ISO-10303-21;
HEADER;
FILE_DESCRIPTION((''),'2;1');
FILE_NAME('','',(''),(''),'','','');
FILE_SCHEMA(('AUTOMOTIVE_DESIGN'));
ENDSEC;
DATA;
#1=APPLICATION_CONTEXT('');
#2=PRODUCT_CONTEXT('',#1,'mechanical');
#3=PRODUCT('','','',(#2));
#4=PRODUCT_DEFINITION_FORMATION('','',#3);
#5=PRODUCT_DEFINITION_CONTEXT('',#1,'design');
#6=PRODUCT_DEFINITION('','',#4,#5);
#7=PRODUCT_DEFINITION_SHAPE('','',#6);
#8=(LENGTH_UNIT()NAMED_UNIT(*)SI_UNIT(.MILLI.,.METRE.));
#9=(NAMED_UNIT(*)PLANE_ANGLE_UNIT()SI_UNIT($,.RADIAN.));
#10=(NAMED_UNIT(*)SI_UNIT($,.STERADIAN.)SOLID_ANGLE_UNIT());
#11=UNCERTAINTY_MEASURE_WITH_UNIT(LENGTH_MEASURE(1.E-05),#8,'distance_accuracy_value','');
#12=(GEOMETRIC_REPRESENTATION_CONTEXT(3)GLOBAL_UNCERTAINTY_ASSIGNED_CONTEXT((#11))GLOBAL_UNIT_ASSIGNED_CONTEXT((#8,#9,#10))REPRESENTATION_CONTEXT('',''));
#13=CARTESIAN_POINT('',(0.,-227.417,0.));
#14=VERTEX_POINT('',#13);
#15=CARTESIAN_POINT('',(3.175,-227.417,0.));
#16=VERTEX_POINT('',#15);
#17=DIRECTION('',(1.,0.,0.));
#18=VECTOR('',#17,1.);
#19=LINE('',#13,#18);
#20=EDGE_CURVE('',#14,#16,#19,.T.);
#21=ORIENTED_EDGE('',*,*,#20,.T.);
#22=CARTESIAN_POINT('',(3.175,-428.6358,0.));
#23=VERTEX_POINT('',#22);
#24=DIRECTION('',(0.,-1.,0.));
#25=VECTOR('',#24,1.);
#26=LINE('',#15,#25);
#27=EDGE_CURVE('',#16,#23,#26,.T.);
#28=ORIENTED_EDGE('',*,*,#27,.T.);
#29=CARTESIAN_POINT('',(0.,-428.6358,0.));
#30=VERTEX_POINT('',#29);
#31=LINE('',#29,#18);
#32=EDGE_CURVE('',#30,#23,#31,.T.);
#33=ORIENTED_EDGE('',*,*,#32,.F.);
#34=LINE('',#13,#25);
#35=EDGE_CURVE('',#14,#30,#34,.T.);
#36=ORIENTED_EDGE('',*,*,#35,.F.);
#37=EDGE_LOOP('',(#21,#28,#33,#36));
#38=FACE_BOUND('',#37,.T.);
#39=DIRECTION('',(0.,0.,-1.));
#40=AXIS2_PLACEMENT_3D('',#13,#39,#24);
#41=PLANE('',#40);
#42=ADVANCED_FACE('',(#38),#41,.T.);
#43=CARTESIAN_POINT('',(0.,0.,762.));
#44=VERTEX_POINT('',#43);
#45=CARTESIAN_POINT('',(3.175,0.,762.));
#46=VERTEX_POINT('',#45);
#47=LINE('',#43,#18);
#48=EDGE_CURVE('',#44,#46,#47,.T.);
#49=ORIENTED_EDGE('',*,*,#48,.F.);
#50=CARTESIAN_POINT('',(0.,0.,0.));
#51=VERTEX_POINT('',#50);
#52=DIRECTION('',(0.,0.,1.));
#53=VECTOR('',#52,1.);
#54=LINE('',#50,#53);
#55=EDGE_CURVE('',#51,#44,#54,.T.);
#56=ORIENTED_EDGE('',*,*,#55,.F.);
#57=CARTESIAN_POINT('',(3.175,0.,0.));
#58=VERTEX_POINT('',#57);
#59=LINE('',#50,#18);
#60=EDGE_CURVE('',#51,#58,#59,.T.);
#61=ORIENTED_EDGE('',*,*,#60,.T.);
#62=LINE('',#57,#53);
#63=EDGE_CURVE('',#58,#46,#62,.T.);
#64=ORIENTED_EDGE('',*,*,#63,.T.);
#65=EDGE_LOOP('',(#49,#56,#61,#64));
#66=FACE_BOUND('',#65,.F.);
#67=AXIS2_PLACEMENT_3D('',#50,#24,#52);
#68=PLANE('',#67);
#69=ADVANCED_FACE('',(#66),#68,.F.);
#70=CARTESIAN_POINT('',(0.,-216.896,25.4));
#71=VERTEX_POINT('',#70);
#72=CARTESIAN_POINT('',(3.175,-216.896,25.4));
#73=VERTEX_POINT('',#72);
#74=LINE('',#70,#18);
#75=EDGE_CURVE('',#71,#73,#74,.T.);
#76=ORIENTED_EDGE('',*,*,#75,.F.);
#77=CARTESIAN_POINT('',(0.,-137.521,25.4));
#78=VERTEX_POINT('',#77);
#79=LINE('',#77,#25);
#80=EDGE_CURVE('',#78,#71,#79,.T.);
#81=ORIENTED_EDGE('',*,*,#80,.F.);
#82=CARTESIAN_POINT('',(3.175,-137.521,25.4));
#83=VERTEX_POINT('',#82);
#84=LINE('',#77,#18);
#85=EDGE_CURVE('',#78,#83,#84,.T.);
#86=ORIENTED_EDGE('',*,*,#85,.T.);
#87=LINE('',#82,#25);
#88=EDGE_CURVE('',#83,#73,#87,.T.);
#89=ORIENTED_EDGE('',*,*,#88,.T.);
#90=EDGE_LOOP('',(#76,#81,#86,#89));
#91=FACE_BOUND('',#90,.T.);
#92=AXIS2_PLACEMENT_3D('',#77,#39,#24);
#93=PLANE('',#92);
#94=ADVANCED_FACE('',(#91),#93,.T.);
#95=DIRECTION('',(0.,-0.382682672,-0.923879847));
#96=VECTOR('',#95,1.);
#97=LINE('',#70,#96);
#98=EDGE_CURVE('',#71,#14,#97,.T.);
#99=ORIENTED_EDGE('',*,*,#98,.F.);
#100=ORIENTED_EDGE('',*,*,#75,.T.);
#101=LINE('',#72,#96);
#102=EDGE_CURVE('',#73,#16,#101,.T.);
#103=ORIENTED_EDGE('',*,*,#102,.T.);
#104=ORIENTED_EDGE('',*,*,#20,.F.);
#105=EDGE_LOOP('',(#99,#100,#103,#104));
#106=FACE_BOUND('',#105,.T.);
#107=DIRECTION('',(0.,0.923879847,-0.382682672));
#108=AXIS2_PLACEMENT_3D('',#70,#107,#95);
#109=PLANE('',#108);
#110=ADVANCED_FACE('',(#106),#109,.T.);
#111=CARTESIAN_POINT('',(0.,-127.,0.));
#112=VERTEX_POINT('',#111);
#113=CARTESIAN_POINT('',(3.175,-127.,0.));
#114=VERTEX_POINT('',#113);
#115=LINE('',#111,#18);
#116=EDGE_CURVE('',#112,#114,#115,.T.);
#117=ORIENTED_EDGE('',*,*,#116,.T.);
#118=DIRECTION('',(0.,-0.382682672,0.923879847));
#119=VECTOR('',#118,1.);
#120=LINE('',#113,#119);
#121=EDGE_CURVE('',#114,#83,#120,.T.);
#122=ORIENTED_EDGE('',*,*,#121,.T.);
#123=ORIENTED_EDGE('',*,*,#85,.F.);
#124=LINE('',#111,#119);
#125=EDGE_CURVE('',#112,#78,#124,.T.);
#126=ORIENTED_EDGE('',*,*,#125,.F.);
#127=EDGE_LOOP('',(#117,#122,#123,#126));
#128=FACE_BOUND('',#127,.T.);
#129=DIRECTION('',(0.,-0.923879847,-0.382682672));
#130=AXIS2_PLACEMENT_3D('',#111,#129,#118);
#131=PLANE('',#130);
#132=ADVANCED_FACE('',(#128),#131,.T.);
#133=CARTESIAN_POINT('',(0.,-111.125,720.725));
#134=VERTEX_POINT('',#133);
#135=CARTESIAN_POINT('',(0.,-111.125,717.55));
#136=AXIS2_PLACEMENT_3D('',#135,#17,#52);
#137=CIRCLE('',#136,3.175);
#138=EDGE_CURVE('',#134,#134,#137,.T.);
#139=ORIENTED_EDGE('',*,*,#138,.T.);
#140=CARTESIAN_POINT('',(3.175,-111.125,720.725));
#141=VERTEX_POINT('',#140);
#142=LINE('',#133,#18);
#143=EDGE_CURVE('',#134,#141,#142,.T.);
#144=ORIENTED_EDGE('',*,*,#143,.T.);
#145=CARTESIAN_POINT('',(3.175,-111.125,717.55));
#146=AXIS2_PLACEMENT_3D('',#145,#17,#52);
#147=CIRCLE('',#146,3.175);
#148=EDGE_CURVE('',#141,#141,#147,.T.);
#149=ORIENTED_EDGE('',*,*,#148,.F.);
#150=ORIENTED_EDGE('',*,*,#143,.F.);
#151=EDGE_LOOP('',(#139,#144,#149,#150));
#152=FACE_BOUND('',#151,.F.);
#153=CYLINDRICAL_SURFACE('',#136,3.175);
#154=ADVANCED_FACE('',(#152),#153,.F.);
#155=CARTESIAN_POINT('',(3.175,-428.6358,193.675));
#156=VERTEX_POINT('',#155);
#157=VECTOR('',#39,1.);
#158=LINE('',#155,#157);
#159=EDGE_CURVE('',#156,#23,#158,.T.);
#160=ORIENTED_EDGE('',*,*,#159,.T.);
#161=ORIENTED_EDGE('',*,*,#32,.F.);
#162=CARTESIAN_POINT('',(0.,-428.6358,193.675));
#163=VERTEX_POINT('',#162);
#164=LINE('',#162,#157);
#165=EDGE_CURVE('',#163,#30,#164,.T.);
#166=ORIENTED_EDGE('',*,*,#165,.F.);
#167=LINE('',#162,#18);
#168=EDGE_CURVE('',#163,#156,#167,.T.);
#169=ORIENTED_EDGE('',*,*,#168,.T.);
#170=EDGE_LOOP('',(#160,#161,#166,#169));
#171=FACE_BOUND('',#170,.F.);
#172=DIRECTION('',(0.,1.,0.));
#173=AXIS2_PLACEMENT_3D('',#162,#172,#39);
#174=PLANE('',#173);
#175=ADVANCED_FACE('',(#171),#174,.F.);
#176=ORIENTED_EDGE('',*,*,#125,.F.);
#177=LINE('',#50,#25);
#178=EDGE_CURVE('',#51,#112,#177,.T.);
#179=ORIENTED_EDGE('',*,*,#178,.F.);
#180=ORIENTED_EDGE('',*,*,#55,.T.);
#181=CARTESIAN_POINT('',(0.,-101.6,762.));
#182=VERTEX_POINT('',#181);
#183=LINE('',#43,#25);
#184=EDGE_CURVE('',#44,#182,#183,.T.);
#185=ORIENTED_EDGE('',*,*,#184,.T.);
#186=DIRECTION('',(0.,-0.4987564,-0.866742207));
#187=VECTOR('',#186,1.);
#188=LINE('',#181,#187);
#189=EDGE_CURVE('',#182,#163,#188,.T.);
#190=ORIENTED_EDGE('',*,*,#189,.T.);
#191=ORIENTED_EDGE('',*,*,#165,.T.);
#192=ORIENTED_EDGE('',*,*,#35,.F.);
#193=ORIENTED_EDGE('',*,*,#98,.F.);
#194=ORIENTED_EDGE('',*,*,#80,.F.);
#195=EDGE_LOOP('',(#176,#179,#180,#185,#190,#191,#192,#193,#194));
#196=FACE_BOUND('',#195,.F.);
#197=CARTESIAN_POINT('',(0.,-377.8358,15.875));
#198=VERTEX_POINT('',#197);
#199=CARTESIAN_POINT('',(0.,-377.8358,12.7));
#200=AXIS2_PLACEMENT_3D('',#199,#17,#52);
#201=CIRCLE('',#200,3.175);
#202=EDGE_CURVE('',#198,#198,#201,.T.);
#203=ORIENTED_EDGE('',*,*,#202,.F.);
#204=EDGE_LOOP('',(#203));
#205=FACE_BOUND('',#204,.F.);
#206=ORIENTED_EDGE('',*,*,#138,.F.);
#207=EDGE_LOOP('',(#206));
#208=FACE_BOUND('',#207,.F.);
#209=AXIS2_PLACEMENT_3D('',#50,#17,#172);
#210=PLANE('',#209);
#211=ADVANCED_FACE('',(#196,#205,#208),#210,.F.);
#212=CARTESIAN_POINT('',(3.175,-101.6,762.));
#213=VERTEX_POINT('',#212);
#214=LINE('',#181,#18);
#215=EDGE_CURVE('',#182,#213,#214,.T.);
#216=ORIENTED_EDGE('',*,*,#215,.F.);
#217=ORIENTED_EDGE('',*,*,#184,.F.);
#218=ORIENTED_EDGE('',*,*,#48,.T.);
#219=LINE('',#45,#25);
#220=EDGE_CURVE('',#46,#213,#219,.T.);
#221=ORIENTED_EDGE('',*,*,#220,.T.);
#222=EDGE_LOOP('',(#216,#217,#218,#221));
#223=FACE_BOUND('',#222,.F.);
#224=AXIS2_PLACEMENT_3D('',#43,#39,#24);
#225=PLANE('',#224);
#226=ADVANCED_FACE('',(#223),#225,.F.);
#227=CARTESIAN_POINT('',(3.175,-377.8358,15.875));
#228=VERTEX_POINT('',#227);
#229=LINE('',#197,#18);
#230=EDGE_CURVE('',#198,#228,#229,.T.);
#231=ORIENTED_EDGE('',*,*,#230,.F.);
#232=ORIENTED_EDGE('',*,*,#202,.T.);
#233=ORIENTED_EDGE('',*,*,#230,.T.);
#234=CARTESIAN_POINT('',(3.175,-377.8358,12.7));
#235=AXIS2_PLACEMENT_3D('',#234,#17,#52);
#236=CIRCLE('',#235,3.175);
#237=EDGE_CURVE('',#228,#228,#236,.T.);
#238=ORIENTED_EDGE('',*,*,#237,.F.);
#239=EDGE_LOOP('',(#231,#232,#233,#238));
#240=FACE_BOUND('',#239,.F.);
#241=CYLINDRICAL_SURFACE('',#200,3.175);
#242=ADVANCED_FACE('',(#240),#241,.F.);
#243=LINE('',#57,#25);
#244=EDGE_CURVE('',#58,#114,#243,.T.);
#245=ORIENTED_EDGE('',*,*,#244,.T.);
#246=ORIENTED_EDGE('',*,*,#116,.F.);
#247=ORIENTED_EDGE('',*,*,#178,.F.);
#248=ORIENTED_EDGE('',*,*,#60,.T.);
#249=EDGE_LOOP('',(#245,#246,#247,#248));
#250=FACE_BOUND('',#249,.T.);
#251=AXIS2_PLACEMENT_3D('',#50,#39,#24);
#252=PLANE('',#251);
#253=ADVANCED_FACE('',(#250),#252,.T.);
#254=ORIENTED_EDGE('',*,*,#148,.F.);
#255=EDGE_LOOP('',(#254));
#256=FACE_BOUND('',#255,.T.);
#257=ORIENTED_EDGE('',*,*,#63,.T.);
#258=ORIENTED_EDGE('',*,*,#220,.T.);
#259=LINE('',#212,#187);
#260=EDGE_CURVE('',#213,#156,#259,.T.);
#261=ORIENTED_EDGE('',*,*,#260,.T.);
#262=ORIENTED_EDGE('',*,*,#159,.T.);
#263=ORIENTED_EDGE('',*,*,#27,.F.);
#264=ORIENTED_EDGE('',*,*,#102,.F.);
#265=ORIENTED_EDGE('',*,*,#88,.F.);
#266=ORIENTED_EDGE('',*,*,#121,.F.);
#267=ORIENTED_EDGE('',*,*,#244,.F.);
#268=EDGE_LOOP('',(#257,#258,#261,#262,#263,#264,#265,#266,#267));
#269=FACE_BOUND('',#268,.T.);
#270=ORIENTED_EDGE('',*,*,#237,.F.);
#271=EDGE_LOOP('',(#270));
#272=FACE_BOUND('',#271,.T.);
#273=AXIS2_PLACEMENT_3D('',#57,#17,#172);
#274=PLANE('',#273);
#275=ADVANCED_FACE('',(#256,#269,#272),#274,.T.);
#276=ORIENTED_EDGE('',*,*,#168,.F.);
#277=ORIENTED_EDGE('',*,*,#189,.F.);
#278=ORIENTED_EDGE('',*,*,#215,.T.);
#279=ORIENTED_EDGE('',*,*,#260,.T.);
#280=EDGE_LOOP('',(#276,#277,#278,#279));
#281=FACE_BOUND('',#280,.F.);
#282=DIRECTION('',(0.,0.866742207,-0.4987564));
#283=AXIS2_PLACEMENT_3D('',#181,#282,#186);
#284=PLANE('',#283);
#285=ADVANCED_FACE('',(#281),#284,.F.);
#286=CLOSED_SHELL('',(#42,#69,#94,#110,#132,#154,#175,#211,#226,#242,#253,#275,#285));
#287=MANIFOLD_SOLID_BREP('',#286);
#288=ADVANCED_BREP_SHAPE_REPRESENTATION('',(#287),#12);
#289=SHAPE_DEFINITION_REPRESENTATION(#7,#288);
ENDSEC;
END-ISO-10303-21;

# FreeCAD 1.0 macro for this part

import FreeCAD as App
import Part
import Sketcher
from FreeCAD import Vector
Q = App.Units.Quantity


def add_polygon(sketch, points):
    """Adds a closed chain of lines whose ends are joined by coincident constraints."""
    first, n = sketch.GeometryCount, len(points)
    for a, b in zip(points, points[1:] + points[:1]):
        sketch.addGeometry(Part.LineSegment(App.Vector(*a, 0), App.Vector(*b, 0)), False)
    for i in range(n):
        sketch.addConstraint(Sketcher.Constraint("Coincident", first + i, 2, first + (i + 1) % n, 1))

doc = App.newDocument("Part")
body = doc.addObject("PartDesign::Body", "Body")

# Sketch on YZ plane
sketch1 = body.newObject("Sketcher::SketchObject", "Sketch")
sketch1.AttachmentSupport = (doc.getObject("YZ_Plane"), [""])
sketch1.MapMode = "FlatFace"
add_polygon(sketch1, [(-127, 0), (0, 0), (0, 762), (-102, 762), (-429, 194), (-429, 0), (-227, 0), (-217, 25), (-138, 25)])  # lines 0-8
sketch1.addConstraint([
    Sketcher.Constraint("Horizontal", 0),
    Sketcher.Constraint("Vertical", 1),
    Sketcher.Constraint("Horizontal", 2),
    Sketcher.Constraint("Vertical", 4),
    Sketcher.Constraint("Horizontal", 5),
    Sketcher.Constraint("Horizontal", 7),
    Sketcher.Constraint("Coincident", 0, 2, -1, 1),
    Sketcher.Constraint("PointOnObject", 4, 2, -1),
    Sketcher.Constraint("Equal", 6, 8),
    Sketcher.Constraint("DistanceX", 0, 1, 0, 2, Q("5 in")),
    Sketcher.Constraint("DistanceX", 2, 2, 2, 1, Q("4 in")),
    Sketcher.Constraint("DistanceY", 1, 1, 1, 2, Q("30 in")),
    Sketcher.Constraint("DistanceY", -1, 1, 6, 2, Q("1 in")),
    Sketcher.Constraint("DistanceX", 5, 1, 5, 2, Q("7.922 in")),
    Sketcher.Constraint("DistanceX", 7, 1, 7, 2, Q("3.125 in")),
    Sketcher.Constraint("DistanceY", 4, 2, 4, 1, Q("7.625 in")),
    Sketcher.Constraint("Angle", 6, Q("67.5 deg")),
])
pad1 = body.newObject("PartDesign::Pad", "Pad")
pad1.Profile = sketch1
pad1.Length = Q("0.125 in")

# Sketch on YZ plane
sketch2 = body.newObject("Sketcher::SketchObject", "Sketch001")
sketch2.AttachmentSupport = (doc.getObject("YZ_Plane"), [""])
sketch2.MapMode = "FlatFace"
sketch2.addGeometry([
    Part.Circle(Vector(-377.8, 12.7, 0), Vector(0, 0, 1), 3.2),
    Part.Circle(Vector(-111.1, 717.5, 0), Vector(0, 0, 1), 3.2),
], False)
sketch2.addConstraint([
    Sketcher.Constraint("Equal", 0, 1),
    Sketcher.Constraint("Diameter", 0, Q("0.25 in")),
    Sketcher.Constraint("DistanceY", -1, 1, 0, 3, Q("0.5 in")),
    Sketcher.Constraint("DistanceY", -1, 1, 1, 3, Q("28.25 in")),
    Sketcher.Constraint("DistanceX", 1, 3, -1, 1, Q("4.375 in")),
    Sketcher.Constraint("DistanceX", 0, 3, -1, 1, 377.8358),
])
doc.recompute()
hole = body.newObject("PartDesign::Hole", "Hole")
hole.Profile = sketch2
hole.ThreadType = "None"
hole.Diameter = Q("0.25 in")
hole.DepthType = "ThroughAll"
hole.Reversed = True

doc.recompute()
